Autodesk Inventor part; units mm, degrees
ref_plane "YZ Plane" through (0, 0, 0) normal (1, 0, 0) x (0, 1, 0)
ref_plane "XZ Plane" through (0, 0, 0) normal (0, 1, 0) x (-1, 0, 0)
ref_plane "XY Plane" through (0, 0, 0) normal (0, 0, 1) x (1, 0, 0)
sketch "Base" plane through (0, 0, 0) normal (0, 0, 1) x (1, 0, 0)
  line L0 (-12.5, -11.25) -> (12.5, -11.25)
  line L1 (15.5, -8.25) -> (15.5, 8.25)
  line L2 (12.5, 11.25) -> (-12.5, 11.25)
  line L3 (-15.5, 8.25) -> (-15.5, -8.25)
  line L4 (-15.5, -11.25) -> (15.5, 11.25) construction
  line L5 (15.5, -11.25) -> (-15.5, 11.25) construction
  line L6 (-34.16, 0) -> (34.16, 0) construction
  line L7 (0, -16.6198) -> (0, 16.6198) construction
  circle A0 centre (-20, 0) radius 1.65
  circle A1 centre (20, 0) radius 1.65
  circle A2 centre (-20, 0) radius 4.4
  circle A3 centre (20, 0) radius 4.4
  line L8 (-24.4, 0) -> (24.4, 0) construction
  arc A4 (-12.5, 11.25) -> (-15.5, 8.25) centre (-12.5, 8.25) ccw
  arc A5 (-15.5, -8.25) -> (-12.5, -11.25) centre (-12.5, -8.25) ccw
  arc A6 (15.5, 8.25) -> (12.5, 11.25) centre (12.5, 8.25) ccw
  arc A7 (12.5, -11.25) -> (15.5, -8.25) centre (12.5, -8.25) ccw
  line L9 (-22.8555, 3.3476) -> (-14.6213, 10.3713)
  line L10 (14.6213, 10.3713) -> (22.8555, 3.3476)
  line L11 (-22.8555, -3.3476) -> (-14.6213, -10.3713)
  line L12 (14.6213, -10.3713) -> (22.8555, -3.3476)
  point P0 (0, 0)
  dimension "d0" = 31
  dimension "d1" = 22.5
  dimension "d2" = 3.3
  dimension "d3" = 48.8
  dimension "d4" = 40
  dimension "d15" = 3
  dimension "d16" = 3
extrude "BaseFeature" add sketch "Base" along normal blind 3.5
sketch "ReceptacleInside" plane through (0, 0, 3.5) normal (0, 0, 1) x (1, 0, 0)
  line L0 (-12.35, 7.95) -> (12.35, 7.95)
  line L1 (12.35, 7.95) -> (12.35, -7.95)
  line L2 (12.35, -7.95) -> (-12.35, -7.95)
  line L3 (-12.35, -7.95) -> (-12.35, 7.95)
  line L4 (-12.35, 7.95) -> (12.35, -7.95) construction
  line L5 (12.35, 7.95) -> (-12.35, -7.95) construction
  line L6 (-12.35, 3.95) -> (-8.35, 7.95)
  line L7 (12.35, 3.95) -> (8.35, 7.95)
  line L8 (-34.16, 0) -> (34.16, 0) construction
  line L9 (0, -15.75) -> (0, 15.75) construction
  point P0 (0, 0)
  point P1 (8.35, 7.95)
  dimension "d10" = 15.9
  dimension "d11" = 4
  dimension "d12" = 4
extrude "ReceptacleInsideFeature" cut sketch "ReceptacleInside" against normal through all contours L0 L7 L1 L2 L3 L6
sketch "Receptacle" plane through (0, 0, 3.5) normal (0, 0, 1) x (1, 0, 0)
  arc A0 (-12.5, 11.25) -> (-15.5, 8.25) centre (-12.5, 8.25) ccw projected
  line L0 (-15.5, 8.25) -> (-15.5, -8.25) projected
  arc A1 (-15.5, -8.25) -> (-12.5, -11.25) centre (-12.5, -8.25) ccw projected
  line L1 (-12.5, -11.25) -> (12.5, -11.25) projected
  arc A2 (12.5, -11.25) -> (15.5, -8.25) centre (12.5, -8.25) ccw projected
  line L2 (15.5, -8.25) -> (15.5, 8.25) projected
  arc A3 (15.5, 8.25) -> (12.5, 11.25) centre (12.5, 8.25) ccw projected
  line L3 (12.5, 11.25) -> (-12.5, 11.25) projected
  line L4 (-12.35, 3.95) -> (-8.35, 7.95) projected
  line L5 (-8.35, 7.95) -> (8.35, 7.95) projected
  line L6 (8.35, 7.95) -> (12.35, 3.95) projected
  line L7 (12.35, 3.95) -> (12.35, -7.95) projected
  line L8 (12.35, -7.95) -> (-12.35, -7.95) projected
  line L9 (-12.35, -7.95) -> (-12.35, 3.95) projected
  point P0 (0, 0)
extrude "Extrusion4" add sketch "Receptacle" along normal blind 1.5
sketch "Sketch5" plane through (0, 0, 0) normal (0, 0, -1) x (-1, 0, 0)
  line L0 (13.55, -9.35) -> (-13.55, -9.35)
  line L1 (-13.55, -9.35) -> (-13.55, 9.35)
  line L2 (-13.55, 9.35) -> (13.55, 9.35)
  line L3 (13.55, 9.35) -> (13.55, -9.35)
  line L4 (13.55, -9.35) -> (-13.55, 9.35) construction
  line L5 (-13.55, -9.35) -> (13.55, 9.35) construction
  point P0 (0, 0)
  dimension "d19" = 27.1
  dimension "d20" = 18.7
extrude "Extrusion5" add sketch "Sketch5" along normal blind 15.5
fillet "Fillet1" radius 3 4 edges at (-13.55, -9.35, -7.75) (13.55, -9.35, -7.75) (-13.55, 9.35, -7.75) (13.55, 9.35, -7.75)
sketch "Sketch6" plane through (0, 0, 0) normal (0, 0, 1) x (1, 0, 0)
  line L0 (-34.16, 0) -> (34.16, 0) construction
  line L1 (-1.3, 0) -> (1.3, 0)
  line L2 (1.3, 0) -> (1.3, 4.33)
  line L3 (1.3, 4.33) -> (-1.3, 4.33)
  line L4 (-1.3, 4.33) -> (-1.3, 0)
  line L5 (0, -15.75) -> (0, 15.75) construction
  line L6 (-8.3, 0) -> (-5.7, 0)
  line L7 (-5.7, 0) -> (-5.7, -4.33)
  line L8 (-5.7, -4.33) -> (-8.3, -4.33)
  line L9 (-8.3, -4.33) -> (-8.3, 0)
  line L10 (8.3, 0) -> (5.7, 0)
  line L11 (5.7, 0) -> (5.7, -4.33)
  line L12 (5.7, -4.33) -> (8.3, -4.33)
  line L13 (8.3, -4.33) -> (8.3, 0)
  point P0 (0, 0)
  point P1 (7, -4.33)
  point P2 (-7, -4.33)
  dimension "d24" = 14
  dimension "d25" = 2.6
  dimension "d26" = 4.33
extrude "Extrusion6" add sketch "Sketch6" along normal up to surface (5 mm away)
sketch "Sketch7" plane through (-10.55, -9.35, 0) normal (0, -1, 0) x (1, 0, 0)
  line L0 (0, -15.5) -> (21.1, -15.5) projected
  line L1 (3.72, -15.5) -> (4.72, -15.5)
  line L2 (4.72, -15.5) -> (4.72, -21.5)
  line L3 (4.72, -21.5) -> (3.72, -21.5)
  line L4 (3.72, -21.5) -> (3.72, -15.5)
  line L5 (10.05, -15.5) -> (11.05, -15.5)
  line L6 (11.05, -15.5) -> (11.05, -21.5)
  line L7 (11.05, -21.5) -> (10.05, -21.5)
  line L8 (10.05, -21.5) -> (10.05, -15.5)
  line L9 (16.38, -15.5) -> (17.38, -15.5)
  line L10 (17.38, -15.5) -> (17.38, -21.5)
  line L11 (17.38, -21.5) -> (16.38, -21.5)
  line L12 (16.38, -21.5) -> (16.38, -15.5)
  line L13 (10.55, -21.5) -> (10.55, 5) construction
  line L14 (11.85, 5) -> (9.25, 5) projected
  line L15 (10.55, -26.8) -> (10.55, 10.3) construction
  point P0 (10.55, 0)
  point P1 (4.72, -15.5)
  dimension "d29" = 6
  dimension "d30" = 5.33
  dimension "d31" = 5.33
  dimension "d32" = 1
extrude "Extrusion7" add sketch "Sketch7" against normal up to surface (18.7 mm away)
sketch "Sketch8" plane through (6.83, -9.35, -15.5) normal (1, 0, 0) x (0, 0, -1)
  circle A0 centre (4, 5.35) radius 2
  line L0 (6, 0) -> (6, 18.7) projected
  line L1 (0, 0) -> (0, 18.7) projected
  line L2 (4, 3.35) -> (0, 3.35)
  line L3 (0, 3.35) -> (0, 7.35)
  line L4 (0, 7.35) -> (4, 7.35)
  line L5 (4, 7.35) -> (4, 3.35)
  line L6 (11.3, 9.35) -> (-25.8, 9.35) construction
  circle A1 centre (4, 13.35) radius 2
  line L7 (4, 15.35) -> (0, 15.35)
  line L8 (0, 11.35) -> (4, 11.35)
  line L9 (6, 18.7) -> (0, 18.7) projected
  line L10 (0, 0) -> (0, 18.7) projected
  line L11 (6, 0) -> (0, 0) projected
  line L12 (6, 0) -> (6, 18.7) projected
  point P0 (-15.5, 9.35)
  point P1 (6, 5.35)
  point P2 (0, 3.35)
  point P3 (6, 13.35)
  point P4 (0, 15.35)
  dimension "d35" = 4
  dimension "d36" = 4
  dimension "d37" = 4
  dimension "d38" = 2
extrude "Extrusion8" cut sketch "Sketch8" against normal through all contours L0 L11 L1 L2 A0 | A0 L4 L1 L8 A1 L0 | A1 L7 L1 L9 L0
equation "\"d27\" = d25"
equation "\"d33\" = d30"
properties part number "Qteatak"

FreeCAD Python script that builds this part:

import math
import FreeCAD as App
import Part
import Sketcher

V = App.Vector


def edges_at(feature, points):
    """Names of the edges that pass closest to the given points."""
    edges = feature.Shape.Edges
    near = lambda p: min(range(len(edges)), key=lambda i: edges[i].distToShape(Part.Vertex(*p))[0])
    return sorted({f"Edge{near(p) + 1}" for p in points})

doc = App.newDocument("Part")
body = doc.addObject("PartDesign::Body", "Body")

# Sketch on XY plane
sketch1 = doc.addObject("Sketcher::SketchObject", "Sketch")
body.addObject(sketch1)
sketch1.AttachmentSupport = (doc.XY_Plane, [""])
sketch1.MapMode = "FlatFace"
sketch1.addGeometry([
    Part.ArcOfCircle(Part.Circle(V(-12.5, -8.25, 0), V(0, 0, 1), 3), math.radians(-135), math.radians(-90)),  # 0
    Part.LineSegment(V(-12.5, -11.25, 0), V(12.5, -11.25, 0)),  # 1
    Part.ArcOfCircle(Part.Circle(V(12.5, -8.25, 0), V(0, 0, 1), 3), math.radians(-90), math.radians(-45)),  # 2
    Part.LineSegment(V(14.6213, -10.3713, 0), V(22.8555, -3.3476, 0)),  # 3
    Part.ArcOfCircle(Part.Circle(V(20, 0, 0), V(0, 0, 1), 4.4), math.radians(-49.535849), math.radians(49.535849)),  # 4
    Part.LineSegment(V(22.8555, 3.3476, 0), V(14.6213, 10.3713, 0)),  # 5
    Part.ArcOfCircle(Part.Circle(V(12.5, 8.25, 0), V(0, 0, 1), 3), math.radians(45), math.radians(90)),  # 6
    Part.LineSegment(V(12.5, 11.25, 0), V(-12.5, 11.25, 0)),  # 7
    Part.ArcOfCircle(Part.Circle(V(-12.5, 8.25, 0), V(0, 0, 1), 3), math.radians(90), math.radians(135)),  # 8
    Part.LineSegment(V(-14.6213, 10.3713, 0), V(-22.8555, 3.3476, 0)),  # 9
    Part.ArcOfCircle(Part.Circle(V(-20, 0, 0), V(0, 0, 1), 4.4), math.radians(130.464151), math.radians(229.535849)),  # 10
    Part.LineSegment(V(-22.8555, -3.3476, 0), V(-14.6213, -10.3713, 0)),  # 11
    Part.Circle(V(-20, 0, 0), V(0, 0, 1), 1.65),  # 12
    Part.Circle(V(20, 0, 0), V(0, 0, 1), 1.65),  # 13
], False)
sketch1.addConstraint([
    Sketcher.Constraint("Tangent", 0, 2, 1, 1),
    Sketcher.Constraint("Tangent", 1, 2, 2, 1),
    Sketcher.Constraint("Coincident", 2, 2, 3, 1),
    Sketcher.Constraint("Tangent", 3, 2, 4, 1),
    Sketcher.Constraint("Tangent", 4, 2, 5, 1),
    Sketcher.Constraint("Coincident", 5, 2, 6, 1),
    Sketcher.Constraint("Tangent", 6, 2, 7, 1),
    Sketcher.Constraint("Tangent", 7, 2, 8, 1),
    Sketcher.Constraint("Coincident", 8, 2, 9, 1),
    Sketcher.Constraint("Tangent", 9, 2, 10, 1),
    Sketcher.Constraint("Tangent", 10, 2, 11, 1),
    Sketcher.Constraint("Coincident", 11, 2, 0, 1),
    Sketcher.Constraint("Horizontal", 1),
    Sketcher.Constraint("Horizontal", 7),
    Sketcher.Constraint("Coincident", 12, 3, 10, 3),
    Sketcher.Constraint("Coincident", 13, 3, 4, 3),
    Sketcher.Constraint("Equal", 0, 2),
    Sketcher.Constraint("Equal", 2, 6),
    Sketcher.Constraint("Equal", 6, 8),
    Sketcher.Constraint("Equal", 4, 10),
    Sketcher.Constraint("Equal", 12, 13),
    Sketcher.Constraint("Symmetric", 0, 3, 6, 3, -1, 1),
    Sketcher.Constraint("Symmetric", 4, 3, 10, 3, -1, 1),
    Sketcher.Constraint("Symmetric", 2, 2, 8, 2, -1, 1),
    Sketcher.Constraint("Symmetric", 5, 2, 8, 2, -2),
    Sketcher.Constraint("Symmetric", 3, 2, 10, 2, -2),
    Sketcher.Constraint("Radius", 0, 3.0),
    Sketcher.Constraint("Diameter", 12, 3.3),
    Sketcher.Constraint("DistanceX", 10, 3, 4, 3, 40.0),
    Sketcher.Constraint("Radius", 4, 4.4),
    Sketcher.Constraint("DistanceY", 0, 2, 7, 2, 22.5),
    Sketcher.Constraint("DistanceX", 1, 1, 1, 2, 25.0),
    Sketcher.Constraint("DistanceY", 3, 2, 5, 2, 13.719),
])
pad1 = doc.addObject("PartDesign::Pad", "Pad")
body.addObject(pad1)
pad1.Profile = sketch1
pad1.Length = 3.5

# Sketch on XY plane
sketch2 = doc.addObject("Sketcher::SketchObject", "Sketch001")
body.addObject(sketch2)
sketch2.AttachmentSupport = (doc.XY_Plane, [""])
sketch2.MapMode = "FlatFace"
sketch2.AttachmentOffset = App.Placement(V(0, 0, 3.5), App.Rotation())
sketch2.addGeometry([
    Part.LineSegment(V(8.35, 7.95, 0), V(-8.35, 7.95, 0)),  # 0
    Part.LineSegment(V(-8.35, 7.95, 0), V(-12.35, 3.95, 0)),  # 1
    Part.LineSegment(V(-12.35, 3.95, 0), V(-12.35, -7.95, 0)),  # 2
    Part.LineSegment(V(-12.35, -7.95, 0), V(12.35, -7.95, 0)),  # 3
    Part.LineSegment(V(12.35, -7.95, 0), V(12.35, 3.95, 0)),  # 4
    Part.LineSegment(V(12.35, 3.95, 0), V(8.35, 7.95, 0)),  # 5
], False)
sketch2.addConstraint([
    Sketcher.Constraint("Coincident", 0, 2, 1, 1),
    Sketcher.Constraint("Coincident", 1, 2, 2, 1),
    Sketcher.Constraint("Coincident", 2, 2, 3, 1),
    Sketcher.Constraint("Coincident", 3, 2, 4, 1),
    Sketcher.Constraint("Coincident", 4, 2, 5, 1),
    Sketcher.Constraint("Coincident", 5, 2, 0, 1),
    Sketcher.Constraint("Horizontal", 0),
    Sketcher.Constraint("Vertical", 2),
    Sketcher.Constraint("Horizontal", 3),
    Sketcher.Constraint("Vertical", 4),
    Sketcher.Constraint("Symmetric", 1, 2, 4, 2, -2),
    Sketcher.Constraint("Perpendicular", 1, 5),
    Sketcher.Constraint("Equal", 1, 5),
    Sketcher.Constraint("DistanceX", 1, 2, 0, 2, 4.0),
    Sketcher.Constraint("DistanceY", 2, 2, 0, 2, 15.9),
    Sketcher.Constraint("DistanceX", 0, 2, 0, 1, 16.7),
    Sketcher.Constraint("DistanceY", -1, 1, 0, 2, 7.95),
])
pocket1 = doc.addObject("PartDesign::Pocket", "Pocket")
body.addObject(pocket1)
pocket1.Profile = sketch2
pocket1.Type = "ThroughAll"

# Sketch on XY plane
sketch3 = doc.addObject("Sketcher::SketchObject", "Sketch002")
body.addObject(sketch3)
sketch3.AttachmentSupport = (doc.XY_Plane, [""])
sketch3.MapMode = "FlatFace"
sketch3.AttachmentOffset = App.Placement(V(0, 0, 3.5), App.Rotation())
sketch3.addGeometry([
    Part.LineSegment(V(12.5, 11.25, 0), V(-12.5, 11.25, 0)),  # 0
    Part.ArcOfCircle(Part.Circle(V(-12.5, 8.25, 0), V(0, 0, 1), 3), math.radians(90), math.radians(180)),  # 1
    Part.LineSegment(V(-15.5, 8.25, 0), V(-15.5, -8.25, 0)),  # 2
    Part.ArcOfCircle(Part.Circle(V(-12.5, -8.25, 0), V(0, 0, 1), 3), math.radians(180), math.radians(270)),  # 3
    Part.LineSegment(V(-12.5, -11.25, 0), V(12.5, -11.25, 0)),  # 4
    Part.ArcOfCircle(Part.Circle(V(12.5, -8.25, 0), V(0, 0, 1), 3), math.radians(-90), math.radians(0)),  # 5
    Part.LineSegment(V(15.5, -8.25, 0), V(15.5, 8.25, 0)),  # 6
    Part.ArcOfCircle(Part.Circle(V(12.5, 8.25, 0), V(0, 0, 1), 3), math.radians(0), math.radians(90)),  # 7
    Part.LineSegment(V(-12.35, -7.95, 0), V(-12.35, 3.95, 0)),  # 8
    Part.LineSegment(V(-12.35, 3.95, 0), V(-8.35, 7.95, 0)),  # 9
    Part.LineSegment(V(-8.35, 7.95, 0), V(8.35, 7.95, 0)),  # 10
    Part.LineSegment(V(8.35, 7.95, 0), V(12.35, 3.95, 0)),  # 11
    Part.LineSegment(V(12.35, 3.95, 0), V(12.35, -7.95, 0)),  # 12
    Part.LineSegment(V(12.35, -7.95, 0), V(-12.35, -7.95, 0)),  # 13
], False)
sketch3.addConstraint([
    Sketcher.Constraint("Tangent", 0, 2, 1, 1),
    Sketcher.Constraint("Tangent", 1, 2, 2, 1),
    Sketcher.Constraint("Tangent", 2, 2, 3, 1),
    Sketcher.Constraint("Tangent", 3, 2, 4, 1),
    Sketcher.Constraint("Tangent", 4, 2, 5, 1),
    Sketcher.Constraint("Tangent", 5, 2, 6, 1),
    Sketcher.Constraint("Tangent", 6, 2, 7, 1),
    Sketcher.Constraint("Tangent", 7, 2, 0, 1),
    Sketcher.Constraint("Coincident", 8, 2, 9, 1),
    Sketcher.Constraint("Coincident", 9, 2, 10, 1),
    Sketcher.Constraint("Coincident", 10, 2, 11, 1),
    Sketcher.Constraint("Coincident", 11, 2, 12, 1),
    Sketcher.Constraint("Coincident", 12, 2, 13, 1),
    Sketcher.Constraint("Coincident", 13, 2, 8, 1),
    Sketcher.Constraint("Horizontal", 0),
    Sketcher.Constraint("Vertical", 2),
    Sketcher.Constraint("Horizontal", 4),
    Sketcher.Constraint("Vertical", 6),
    Sketcher.Constraint("Vertical", 8),
    Sketcher.Constraint("Horizontal", 10),
    Sketcher.Constraint("Vertical", 12),
    Sketcher.Constraint("Horizontal", 13),
    Sketcher.Constraint("Equal", 1, 3),
    Sketcher.Constraint("Equal", 3, 5),
    Sketcher.Constraint("Equal", 5, 7),
    Sketcher.Constraint("Symmetric", 1, 3, 5, 3, -1, 1),
    Sketcher.Constraint("Symmetric", 8, 2, 11, 2, -2),
    Sketcher.Constraint("Perpendicular", 9, 11),
    Sketcher.Constraint("Equal", 9, 11),
    Sketcher.Constraint("Radius", 1, 3.0),
    Sketcher.Constraint("DistanceX", 0, 2, 0, 1, 25.0),
    Sketcher.Constraint("DistanceX", 10, 1, 10, 2, 16.7),
    Sketcher.Constraint("DistanceX", 13, 2, 13, 1, 24.7),
    Sketcher.Constraint("DistanceY", 2, 2, 2, 1, 16.5),
    Sketcher.Constraint("DistanceY", 8, 1, 8, 2, 11.9),
    Sketcher.Constraint("DistanceY", 8, 2, 1, 3, 4.3),
])
pad2 = doc.addObject("PartDesign::Pad", "Pad001")
body.addObject(pad2)
pad2.Profile = sketch3
pad2.Length = 1.5

# Sketch on XY plane
sketch4 = doc.addObject("Sketcher::SketchObject", "Sketch003")
body.addObject(sketch4)
sketch4.AttachmentSupport = (doc.XY_Plane, [""])
sketch4.MapMode = "FlatFace"
sketch4.addGeometry([
    Part.LineSegment(V(13.55, -9.35, 0), V(-13.55, -9.35, 0)),
    Part.LineSegment(V(-13.55, -9.35, 0), V(-13.55, 9.35, 0)),
    Part.LineSegment(V(-13.55, 9.35, 0), V(13.55, 9.35, 0)),
    Part.LineSegment(V(13.55, 9.35, 0), V(13.55, -9.35, 0)),
], False)
sketch4.addConstraint([
    Sketcher.Constraint("Coincident", 0, 2, 1, 1),
    Sketcher.Constraint("Coincident", 1, 2, 2, 1),
    Sketcher.Constraint("Coincident", 2, 2, 3, 1),
    Sketcher.Constraint("Coincident", 3, 2, 0, 1),
    Sketcher.Constraint("Horizontal", 0),
    Sketcher.Constraint("Vertical", 1),
    Sketcher.Constraint("Horizontal", 2),
    Sketcher.Constraint("Vertical", 3),
    Sketcher.Constraint("Symmetric", 0, 2, 2, 2, -1, 1),
    Sketcher.Constraint("DistanceX", 0, 2, 0, 1, 27.1),
    Sketcher.Constraint("DistanceY", 1, 1, 1, 2, 18.7),
])
pad3 = doc.addObject("PartDesign::Pad", "Pad002")
body.addObject(pad3)
pad3.Profile = sketch4
pad3.Length = 15.5
pad3.Reversed = True
doc.recompute()

fillet = doc.addObject("PartDesign::Fillet", "Fillet")
body.addObject(fillet)
fillet.Base = (pad3, edges_at(pad3, [
    (-13.55, -9.35, -7.75),
    (13.55, -9.35, -7.75),
    (-13.55, 9.35, -7.75),
    (13.55, 9.35, -7.75),
]))
fillet.Radius = 3

# Sketch on XY plane
sketch5 = doc.addObject("Sketcher::SketchObject", "Sketch004")
body.addObject(sketch5)
sketch5.AttachmentSupport = (doc.XY_Plane, [""])
sketch5.MapMode = "FlatFace"
sketch5.addGeometry([
    Part.LineSegment(V(-1.3, 4.33, 0), V(-1.3, 0, 0)),  # 0
    Part.LineSegment(V(-1.3, 0, 0), V(1.3, 0, 0)),  # 1
    Part.LineSegment(V(1.3, 0, 0), V(1.3, 4.33, 0)),  # 2
    Part.LineSegment(V(1.3, 4.33, 0), V(-1.3, 4.33, 0)),  # 3
    Part.LineSegment(V(-5.7, 0, 0), V(-8.3, 0, 0)),  # 4
    Part.LineSegment(V(-8.3, 0, 0), V(-8.3, -4.33, 0)),  # 5
    Part.LineSegment(V(-8.3, -4.33, 0), V(-5.7, -4.33, 0)),  # 6
    Part.LineSegment(V(-5.7, -4.33, 0), V(-5.7, 0, 0)),  # 7
    Part.LineSegment(V(8.3, -4.33, 0), V(8.3, 0, 0)),  # 8
    Part.LineSegment(V(8.3, 0, 0), V(5.7, 0, 0)),  # 9
    Part.LineSegment(V(5.7, 0, 0), V(5.7, -4.33, 0)),  # 10
    Part.LineSegment(V(5.7, -4.33, 0), V(8.3, -4.33, 0)),  # 11
], False)
sketch5.addConstraint([
    Sketcher.Constraint("Coincident", 0, 2, 1, 1),
    Sketcher.Constraint("Coincident", 1, 2, 2, 1),
    Sketcher.Constraint("Coincident", 2, 2, 3, 1),
    Sketcher.Constraint("Coincident", 3, 2, 0, 1),
    Sketcher.Constraint("Coincident", 4, 2, 5, 1),
    Sketcher.Constraint("Coincident", 5, 2, 6, 1),
    Sketcher.Constraint("Coincident", 6, 2, 7, 1),
    Sketcher.Constraint("Coincident", 7, 2, 4, 1),
    Sketcher.Constraint("Coincident", 8, 2, 9, 1),
    Sketcher.Constraint("Coincident", 9, 2, 10, 1),
    Sketcher.Constraint("Coincident", 10, 2, 11, 1),
    Sketcher.Constraint("Coincident", 11, 2, 8, 1),
    Sketcher.Constraint("Vertical", 0),
    Sketcher.Constraint("Horizontal", 1),
    Sketcher.Constraint("Vertical", 2),
    Sketcher.Constraint("Horizontal", 3),
    Sketcher.Constraint("Horizontal", 4),
    Sketcher.Constraint("Vertical", 5),
    Sketcher.Constraint("Horizontal", 6),
    Sketcher.Constraint("Vertical", 7),
    Sketcher.Constraint("Vertical", 8),
    Sketcher.Constraint("Horizontal", 9),
    Sketcher.Constraint("Vertical", 10),
    Sketcher.Constraint("Horizontal", 11),
    Sketcher.Constraint("Symmetric", 0, 2, 1, 2, -1, 1),
    Sketcher.Constraint("Symmetric", 4, 2, 8, 2, -1, 1),
    Sketcher.Constraint("Symmetric", 7, 2, 9, 2, -2),
    Sketcher.Constraint("Horizontal", 6, 2, 10, 2),
    Sketcher.Constraint("Equal", 3, 4),
    Sketcher.Constraint("Equal", 2, 5),
    Sketcher.Constraint("DistanceX", 1, 1, 1, 2, 2.6),
    Sketcher.Constraint("DistanceX", 7, 2, 8, 2, 14.0),
    Sketcher.Constraint("DistanceY", 0, 2, 0, 1, 4.33),
])
pad4 = doc.addObject("PartDesign::Pad", "Pad003")
body.addObject(pad4)
pad4.Profile = sketch5
pad4.Length = 5

# Sketch on XZ plane
sketch6 = doc.addObject("Sketcher::SketchObject", "Sketch005")
body.addObject(sketch6)
sketch6.AttachmentSupport = (doc.XZ_Plane, [""])
sketch6.MapMode = "FlatFace"
sketch6.AttachmentOffset = App.Placement(V(0, 0, 9.35), App.Rotation())
sketch6.addGeometry([
    Part.LineSegment(V(6.83, -15.5, 0), V(5.83, -15.5, 0)),  # 0
    Part.LineSegment(V(5.83, -15.5, 0), V(5.83, -21.5, 0)),  # 1
    Part.LineSegment(V(5.83, -21.5, 0), V(6.83, -21.5, 0)),  # 2
    Part.LineSegment(V(6.83, -21.5, 0), V(6.83, -15.5, 0)),  # 3
    Part.LineSegment(V(0.5, -15.5, 0), V(-0.5, -15.5, 0)),  # 4
    Part.LineSegment(V(-0.5, -15.5, 0), V(-0.5, -21.5, 0)),  # 5
    Part.LineSegment(V(-0.5, -21.5, 0), V(0.5, -21.5, 0)),  # 6
    Part.LineSegment(V(0.5, -21.5, 0), V(0.5, -15.5, 0)),  # 7
    Part.LineSegment(V(-5.83, -15.5, 0), V(-6.83, -15.5, 0)),  # 8
    Part.LineSegment(V(-6.83, -15.5, 0), V(-6.83, -21.5, 0)),  # 9
    Part.LineSegment(V(-6.83, -21.5, 0), V(-5.83, -21.5, 0)),  # 10
    Part.LineSegment(V(-5.83, -21.5, 0), V(-5.83, -15.5, 0)),  # 11
], False)
sketch6.addConstraint([
    Sketcher.Constraint("Coincident", 0, 2, 1, 1),
    Sketcher.Constraint("Coincident", 1, 2, 2, 1),
    Sketcher.Constraint("Coincident", 2, 2, 3, 1),
    Sketcher.Constraint("Coincident", 3, 2, 0, 1),
    Sketcher.Constraint("Coincident", 4, 2, 5, 1),
    Sketcher.Constraint("Coincident", 5, 2, 6, 1),
    Sketcher.Constraint("Coincident", 6, 2, 7, 1),
    Sketcher.Constraint("Coincident", 7, 2, 4, 1),
    Sketcher.Constraint("Coincident", 8, 2, 9, 1),
    Sketcher.Constraint("Coincident", 9, 2, 10, 1),
    Sketcher.Constraint("Coincident", 10, 2, 11, 1),
    Sketcher.Constraint("Coincident", 11, 2, 8, 1),
    Sketcher.Constraint("Horizontal", 0),
    Sketcher.Constraint("Vertical", 1),
    Sketcher.Constraint("Horizontal", 2),
    Sketcher.Constraint("Vertical", 3),
    Sketcher.Constraint("Horizontal", 4),
    Sketcher.Constraint("Vertical", 5),
    Sketcher.Constraint("Horizontal", 6),
    Sketcher.Constraint("Vertical", 7),
    Sketcher.Constraint("Horizontal", 8),
    Sketcher.Constraint("Vertical", 9),
    Sketcher.Constraint("Horizontal", 10),
    Sketcher.Constraint("Vertical", 11),
    Sketcher.Constraint("Symmetric", 3, 2, 8, 2, -2),
    Sketcher.Constraint("Symmetric", 1, 2, 10, 2, -2),
    Sketcher.Constraint("Horizontal", 3, 2, 4, 2),
    Sketcher.Constraint("Horizontal", 2, 2, 5, 2),
    Sketcher.Constraint("Equal", 2, 4),
    Sketcher.Constraint("DistanceX", 0, 2, 0, 1, 1.0),
    Sketcher.Constraint("DistanceY", 1, 2, 1, 1, 6.0),
    Sketcher.Constraint("DistanceX", 6, 2, 1, 2, 5.33),
    Sketcher.Constraint("DistanceX", 10, 2, 5, 2, 5.33),
    Sketcher.Constraint("DistanceY", 0, 2, -1, 1, 15.5),
])
pad5 = doc.addObject("PartDesign::Pad", "Pad004")
body.addObject(pad5)
pad5.Profile = sketch6
pad5.Length = 18.7
pad5.Reversed = True

# Sketch on YZ plane
sketch7 = doc.addObject("Sketcher::SketchObject", "Sketch006")
body.addObject(sketch7)
sketch7.AttachmentSupport = (doc.YZ_Plane, [""])
sketch7.MapMode = "FlatFace"
sketch7.AttachmentOffset = App.Placement(V(0, 0, 6.83), App.Rotation())
sketch7.addGeometry([
    Part.LineSegment(V(-9.35, -21.5, 0), V(-4, -21.5, 0)),  # 0
    Part.ArcOfCircle(Part.Circle(V(-4, -19.5, 0), V(0, 0, 1), 2), math.radians(180), math.radians(270)),  # 1
    Part.LineSegment(V(-6, -19.5, 0), V(-6, -15.5, 0)),  # 2
    Part.LineSegment(V(-6, -15.5, 0), V(-9.35, -15.5, 0)),  # 3
    Part.LineSegment(V(-9.35, -15.5, 0), V(-9.35, -21.5, 0)),  # 4
    Part.ArcOfCircle(Part.Circle(V(-4, -19.5, 0), V(0, 0, 1), 2), math.radians(-90), math.radians(0)),  # 5
    Part.LineSegment(V(-4, -21.5, 0), V(4, -21.5, 0)),  # 6
    Part.ArcOfCircle(Part.Circle(V(4, -19.5, 0), V(0, 0, 1), 2), math.radians(180), math.radians(270)),  # 7
    Part.LineSegment(V(2, -19.5, 0), V(2, -15.5, 0)),  # 8
    Part.LineSegment(V(2, -15.5, 0), V(-2, -15.5, 0)),  # 9
    Part.LineSegment(V(-2, -15.5, 0), V(-2, -19.5, 0)),  # 10
    Part.ArcOfCircle(Part.Circle(V(4, -19.5, 0), V(0, 0, 1), 2), math.radians(-90), math.radians(0)),  # 11
    Part.LineSegment(V(4, -21.5, 0), V(9.35, -21.5, 0)),  # 12
    Part.LineSegment(V(9.35, -21.5, 0), V(9.35, -15.5, 0)),  # 13
    Part.LineSegment(V(9.35, -15.5, 0), V(6, -15.5, 0)),  # 14
    Part.LineSegment(V(6, -15.5, 0), V(6, -19.5, 0)),  # 15
], False)
sketch7.addConstraint([
    Sketcher.Constraint("Tangent", 0, 2, 1, 2),
    Sketcher.Constraint("Tangent", 1, 1, 2, 1),
    Sketcher.Constraint("Coincident", 2, 2, 3, 1),
    Sketcher.Constraint("Coincident", 3, 2, 4, 1),
    Sketcher.Constraint("Coincident", 4, 2, 0, 1),
    Sketcher.Constraint("Tangent", 5, 1, 6, 1),
    Sketcher.Constraint("Tangent", 6, 2, 7, 2),
    Sketcher.Constraint("Tangent", 7, 1, 8, 1),
    Sketcher.Constraint("Coincident", 8, 2, 9, 1),
    Sketcher.Constraint("Coincident", 9, 2, 10, 1),
    Sketcher.Constraint("Tangent", 10, 2, 5, 2),
    Sketcher.Constraint("Tangent", 11, 1, 12, 1),
    Sketcher.Constraint("Coincident", 12, 2, 13, 1),
    Sketcher.Constraint("Coincident", 13, 2, 14, 1),
    Sketcher.Constraint("Coincident", 14, 2, 15, 1),
    Sketcher.Constraint("Tangent", 15, 2, 11, 2),
    Sketcher.Constraint("Horizontal", 0),
    Sketcher.Constraint("Vertical", 2),
    Sketcher.Constraint("Horizontal", 3),
    Sketcher.Constraint("Vertical", 4),
    Sketcher.Constraint("Horizontal", 6),
    Sketcher.Constraint("Vertical", 8),
    Sketcher.Constraint("Horizontal", 9),
    Sketcher.Constraint("Vertical", 10),
    Sketcher.Constraint("Horizontal", 12),
    Sketcher.Constraint("Vertical", 13),
    Sketcher.Constraint("Horizontal", 14),
    Sketcher.Constraint("Vertical", 15),
    Sketcher.Constraint("Coincident", 5, 3, 1, 3),
    Sketcher.Constraint("Coincident", 11, 3, 7, 3),
    Sketcher.Constraint("Equal", 1, 5),
    Sketcher.Constraint("Equal", 5, 7),
    Sketcher.Constraint("Equal", 7, 11),
    Sketcher.Constraint("Symmetric", 3, 2, 13, 2, -2),
    Sketcher.Constraint("Horizontal", 3, 2, 8, 2),
    Sketcher.Constraint("Equal", 0, 12),
    Sketcher.Constraint("Equal", 9, 2),
    Sketcher.Constraint("Radius", 1, 2.0),
    Sketcher.Constraint("DistanceX", 9, 2, 9, 1, 4.0),
    Sketcher.Constraint("DistanceX", 0, 1, 0, 2, 5.35),
    Sketcher.Constraint("DistanceY", 1, 3, -1, 1, 19.5),
])
pocket2 = doc.addObject("PartDesign::Pocket", "Pocket001")
body.addObject(pocket2)
pocket2.Profile = sketch7
pocket2.Type = "ThroughAll"

doc.recompute()
